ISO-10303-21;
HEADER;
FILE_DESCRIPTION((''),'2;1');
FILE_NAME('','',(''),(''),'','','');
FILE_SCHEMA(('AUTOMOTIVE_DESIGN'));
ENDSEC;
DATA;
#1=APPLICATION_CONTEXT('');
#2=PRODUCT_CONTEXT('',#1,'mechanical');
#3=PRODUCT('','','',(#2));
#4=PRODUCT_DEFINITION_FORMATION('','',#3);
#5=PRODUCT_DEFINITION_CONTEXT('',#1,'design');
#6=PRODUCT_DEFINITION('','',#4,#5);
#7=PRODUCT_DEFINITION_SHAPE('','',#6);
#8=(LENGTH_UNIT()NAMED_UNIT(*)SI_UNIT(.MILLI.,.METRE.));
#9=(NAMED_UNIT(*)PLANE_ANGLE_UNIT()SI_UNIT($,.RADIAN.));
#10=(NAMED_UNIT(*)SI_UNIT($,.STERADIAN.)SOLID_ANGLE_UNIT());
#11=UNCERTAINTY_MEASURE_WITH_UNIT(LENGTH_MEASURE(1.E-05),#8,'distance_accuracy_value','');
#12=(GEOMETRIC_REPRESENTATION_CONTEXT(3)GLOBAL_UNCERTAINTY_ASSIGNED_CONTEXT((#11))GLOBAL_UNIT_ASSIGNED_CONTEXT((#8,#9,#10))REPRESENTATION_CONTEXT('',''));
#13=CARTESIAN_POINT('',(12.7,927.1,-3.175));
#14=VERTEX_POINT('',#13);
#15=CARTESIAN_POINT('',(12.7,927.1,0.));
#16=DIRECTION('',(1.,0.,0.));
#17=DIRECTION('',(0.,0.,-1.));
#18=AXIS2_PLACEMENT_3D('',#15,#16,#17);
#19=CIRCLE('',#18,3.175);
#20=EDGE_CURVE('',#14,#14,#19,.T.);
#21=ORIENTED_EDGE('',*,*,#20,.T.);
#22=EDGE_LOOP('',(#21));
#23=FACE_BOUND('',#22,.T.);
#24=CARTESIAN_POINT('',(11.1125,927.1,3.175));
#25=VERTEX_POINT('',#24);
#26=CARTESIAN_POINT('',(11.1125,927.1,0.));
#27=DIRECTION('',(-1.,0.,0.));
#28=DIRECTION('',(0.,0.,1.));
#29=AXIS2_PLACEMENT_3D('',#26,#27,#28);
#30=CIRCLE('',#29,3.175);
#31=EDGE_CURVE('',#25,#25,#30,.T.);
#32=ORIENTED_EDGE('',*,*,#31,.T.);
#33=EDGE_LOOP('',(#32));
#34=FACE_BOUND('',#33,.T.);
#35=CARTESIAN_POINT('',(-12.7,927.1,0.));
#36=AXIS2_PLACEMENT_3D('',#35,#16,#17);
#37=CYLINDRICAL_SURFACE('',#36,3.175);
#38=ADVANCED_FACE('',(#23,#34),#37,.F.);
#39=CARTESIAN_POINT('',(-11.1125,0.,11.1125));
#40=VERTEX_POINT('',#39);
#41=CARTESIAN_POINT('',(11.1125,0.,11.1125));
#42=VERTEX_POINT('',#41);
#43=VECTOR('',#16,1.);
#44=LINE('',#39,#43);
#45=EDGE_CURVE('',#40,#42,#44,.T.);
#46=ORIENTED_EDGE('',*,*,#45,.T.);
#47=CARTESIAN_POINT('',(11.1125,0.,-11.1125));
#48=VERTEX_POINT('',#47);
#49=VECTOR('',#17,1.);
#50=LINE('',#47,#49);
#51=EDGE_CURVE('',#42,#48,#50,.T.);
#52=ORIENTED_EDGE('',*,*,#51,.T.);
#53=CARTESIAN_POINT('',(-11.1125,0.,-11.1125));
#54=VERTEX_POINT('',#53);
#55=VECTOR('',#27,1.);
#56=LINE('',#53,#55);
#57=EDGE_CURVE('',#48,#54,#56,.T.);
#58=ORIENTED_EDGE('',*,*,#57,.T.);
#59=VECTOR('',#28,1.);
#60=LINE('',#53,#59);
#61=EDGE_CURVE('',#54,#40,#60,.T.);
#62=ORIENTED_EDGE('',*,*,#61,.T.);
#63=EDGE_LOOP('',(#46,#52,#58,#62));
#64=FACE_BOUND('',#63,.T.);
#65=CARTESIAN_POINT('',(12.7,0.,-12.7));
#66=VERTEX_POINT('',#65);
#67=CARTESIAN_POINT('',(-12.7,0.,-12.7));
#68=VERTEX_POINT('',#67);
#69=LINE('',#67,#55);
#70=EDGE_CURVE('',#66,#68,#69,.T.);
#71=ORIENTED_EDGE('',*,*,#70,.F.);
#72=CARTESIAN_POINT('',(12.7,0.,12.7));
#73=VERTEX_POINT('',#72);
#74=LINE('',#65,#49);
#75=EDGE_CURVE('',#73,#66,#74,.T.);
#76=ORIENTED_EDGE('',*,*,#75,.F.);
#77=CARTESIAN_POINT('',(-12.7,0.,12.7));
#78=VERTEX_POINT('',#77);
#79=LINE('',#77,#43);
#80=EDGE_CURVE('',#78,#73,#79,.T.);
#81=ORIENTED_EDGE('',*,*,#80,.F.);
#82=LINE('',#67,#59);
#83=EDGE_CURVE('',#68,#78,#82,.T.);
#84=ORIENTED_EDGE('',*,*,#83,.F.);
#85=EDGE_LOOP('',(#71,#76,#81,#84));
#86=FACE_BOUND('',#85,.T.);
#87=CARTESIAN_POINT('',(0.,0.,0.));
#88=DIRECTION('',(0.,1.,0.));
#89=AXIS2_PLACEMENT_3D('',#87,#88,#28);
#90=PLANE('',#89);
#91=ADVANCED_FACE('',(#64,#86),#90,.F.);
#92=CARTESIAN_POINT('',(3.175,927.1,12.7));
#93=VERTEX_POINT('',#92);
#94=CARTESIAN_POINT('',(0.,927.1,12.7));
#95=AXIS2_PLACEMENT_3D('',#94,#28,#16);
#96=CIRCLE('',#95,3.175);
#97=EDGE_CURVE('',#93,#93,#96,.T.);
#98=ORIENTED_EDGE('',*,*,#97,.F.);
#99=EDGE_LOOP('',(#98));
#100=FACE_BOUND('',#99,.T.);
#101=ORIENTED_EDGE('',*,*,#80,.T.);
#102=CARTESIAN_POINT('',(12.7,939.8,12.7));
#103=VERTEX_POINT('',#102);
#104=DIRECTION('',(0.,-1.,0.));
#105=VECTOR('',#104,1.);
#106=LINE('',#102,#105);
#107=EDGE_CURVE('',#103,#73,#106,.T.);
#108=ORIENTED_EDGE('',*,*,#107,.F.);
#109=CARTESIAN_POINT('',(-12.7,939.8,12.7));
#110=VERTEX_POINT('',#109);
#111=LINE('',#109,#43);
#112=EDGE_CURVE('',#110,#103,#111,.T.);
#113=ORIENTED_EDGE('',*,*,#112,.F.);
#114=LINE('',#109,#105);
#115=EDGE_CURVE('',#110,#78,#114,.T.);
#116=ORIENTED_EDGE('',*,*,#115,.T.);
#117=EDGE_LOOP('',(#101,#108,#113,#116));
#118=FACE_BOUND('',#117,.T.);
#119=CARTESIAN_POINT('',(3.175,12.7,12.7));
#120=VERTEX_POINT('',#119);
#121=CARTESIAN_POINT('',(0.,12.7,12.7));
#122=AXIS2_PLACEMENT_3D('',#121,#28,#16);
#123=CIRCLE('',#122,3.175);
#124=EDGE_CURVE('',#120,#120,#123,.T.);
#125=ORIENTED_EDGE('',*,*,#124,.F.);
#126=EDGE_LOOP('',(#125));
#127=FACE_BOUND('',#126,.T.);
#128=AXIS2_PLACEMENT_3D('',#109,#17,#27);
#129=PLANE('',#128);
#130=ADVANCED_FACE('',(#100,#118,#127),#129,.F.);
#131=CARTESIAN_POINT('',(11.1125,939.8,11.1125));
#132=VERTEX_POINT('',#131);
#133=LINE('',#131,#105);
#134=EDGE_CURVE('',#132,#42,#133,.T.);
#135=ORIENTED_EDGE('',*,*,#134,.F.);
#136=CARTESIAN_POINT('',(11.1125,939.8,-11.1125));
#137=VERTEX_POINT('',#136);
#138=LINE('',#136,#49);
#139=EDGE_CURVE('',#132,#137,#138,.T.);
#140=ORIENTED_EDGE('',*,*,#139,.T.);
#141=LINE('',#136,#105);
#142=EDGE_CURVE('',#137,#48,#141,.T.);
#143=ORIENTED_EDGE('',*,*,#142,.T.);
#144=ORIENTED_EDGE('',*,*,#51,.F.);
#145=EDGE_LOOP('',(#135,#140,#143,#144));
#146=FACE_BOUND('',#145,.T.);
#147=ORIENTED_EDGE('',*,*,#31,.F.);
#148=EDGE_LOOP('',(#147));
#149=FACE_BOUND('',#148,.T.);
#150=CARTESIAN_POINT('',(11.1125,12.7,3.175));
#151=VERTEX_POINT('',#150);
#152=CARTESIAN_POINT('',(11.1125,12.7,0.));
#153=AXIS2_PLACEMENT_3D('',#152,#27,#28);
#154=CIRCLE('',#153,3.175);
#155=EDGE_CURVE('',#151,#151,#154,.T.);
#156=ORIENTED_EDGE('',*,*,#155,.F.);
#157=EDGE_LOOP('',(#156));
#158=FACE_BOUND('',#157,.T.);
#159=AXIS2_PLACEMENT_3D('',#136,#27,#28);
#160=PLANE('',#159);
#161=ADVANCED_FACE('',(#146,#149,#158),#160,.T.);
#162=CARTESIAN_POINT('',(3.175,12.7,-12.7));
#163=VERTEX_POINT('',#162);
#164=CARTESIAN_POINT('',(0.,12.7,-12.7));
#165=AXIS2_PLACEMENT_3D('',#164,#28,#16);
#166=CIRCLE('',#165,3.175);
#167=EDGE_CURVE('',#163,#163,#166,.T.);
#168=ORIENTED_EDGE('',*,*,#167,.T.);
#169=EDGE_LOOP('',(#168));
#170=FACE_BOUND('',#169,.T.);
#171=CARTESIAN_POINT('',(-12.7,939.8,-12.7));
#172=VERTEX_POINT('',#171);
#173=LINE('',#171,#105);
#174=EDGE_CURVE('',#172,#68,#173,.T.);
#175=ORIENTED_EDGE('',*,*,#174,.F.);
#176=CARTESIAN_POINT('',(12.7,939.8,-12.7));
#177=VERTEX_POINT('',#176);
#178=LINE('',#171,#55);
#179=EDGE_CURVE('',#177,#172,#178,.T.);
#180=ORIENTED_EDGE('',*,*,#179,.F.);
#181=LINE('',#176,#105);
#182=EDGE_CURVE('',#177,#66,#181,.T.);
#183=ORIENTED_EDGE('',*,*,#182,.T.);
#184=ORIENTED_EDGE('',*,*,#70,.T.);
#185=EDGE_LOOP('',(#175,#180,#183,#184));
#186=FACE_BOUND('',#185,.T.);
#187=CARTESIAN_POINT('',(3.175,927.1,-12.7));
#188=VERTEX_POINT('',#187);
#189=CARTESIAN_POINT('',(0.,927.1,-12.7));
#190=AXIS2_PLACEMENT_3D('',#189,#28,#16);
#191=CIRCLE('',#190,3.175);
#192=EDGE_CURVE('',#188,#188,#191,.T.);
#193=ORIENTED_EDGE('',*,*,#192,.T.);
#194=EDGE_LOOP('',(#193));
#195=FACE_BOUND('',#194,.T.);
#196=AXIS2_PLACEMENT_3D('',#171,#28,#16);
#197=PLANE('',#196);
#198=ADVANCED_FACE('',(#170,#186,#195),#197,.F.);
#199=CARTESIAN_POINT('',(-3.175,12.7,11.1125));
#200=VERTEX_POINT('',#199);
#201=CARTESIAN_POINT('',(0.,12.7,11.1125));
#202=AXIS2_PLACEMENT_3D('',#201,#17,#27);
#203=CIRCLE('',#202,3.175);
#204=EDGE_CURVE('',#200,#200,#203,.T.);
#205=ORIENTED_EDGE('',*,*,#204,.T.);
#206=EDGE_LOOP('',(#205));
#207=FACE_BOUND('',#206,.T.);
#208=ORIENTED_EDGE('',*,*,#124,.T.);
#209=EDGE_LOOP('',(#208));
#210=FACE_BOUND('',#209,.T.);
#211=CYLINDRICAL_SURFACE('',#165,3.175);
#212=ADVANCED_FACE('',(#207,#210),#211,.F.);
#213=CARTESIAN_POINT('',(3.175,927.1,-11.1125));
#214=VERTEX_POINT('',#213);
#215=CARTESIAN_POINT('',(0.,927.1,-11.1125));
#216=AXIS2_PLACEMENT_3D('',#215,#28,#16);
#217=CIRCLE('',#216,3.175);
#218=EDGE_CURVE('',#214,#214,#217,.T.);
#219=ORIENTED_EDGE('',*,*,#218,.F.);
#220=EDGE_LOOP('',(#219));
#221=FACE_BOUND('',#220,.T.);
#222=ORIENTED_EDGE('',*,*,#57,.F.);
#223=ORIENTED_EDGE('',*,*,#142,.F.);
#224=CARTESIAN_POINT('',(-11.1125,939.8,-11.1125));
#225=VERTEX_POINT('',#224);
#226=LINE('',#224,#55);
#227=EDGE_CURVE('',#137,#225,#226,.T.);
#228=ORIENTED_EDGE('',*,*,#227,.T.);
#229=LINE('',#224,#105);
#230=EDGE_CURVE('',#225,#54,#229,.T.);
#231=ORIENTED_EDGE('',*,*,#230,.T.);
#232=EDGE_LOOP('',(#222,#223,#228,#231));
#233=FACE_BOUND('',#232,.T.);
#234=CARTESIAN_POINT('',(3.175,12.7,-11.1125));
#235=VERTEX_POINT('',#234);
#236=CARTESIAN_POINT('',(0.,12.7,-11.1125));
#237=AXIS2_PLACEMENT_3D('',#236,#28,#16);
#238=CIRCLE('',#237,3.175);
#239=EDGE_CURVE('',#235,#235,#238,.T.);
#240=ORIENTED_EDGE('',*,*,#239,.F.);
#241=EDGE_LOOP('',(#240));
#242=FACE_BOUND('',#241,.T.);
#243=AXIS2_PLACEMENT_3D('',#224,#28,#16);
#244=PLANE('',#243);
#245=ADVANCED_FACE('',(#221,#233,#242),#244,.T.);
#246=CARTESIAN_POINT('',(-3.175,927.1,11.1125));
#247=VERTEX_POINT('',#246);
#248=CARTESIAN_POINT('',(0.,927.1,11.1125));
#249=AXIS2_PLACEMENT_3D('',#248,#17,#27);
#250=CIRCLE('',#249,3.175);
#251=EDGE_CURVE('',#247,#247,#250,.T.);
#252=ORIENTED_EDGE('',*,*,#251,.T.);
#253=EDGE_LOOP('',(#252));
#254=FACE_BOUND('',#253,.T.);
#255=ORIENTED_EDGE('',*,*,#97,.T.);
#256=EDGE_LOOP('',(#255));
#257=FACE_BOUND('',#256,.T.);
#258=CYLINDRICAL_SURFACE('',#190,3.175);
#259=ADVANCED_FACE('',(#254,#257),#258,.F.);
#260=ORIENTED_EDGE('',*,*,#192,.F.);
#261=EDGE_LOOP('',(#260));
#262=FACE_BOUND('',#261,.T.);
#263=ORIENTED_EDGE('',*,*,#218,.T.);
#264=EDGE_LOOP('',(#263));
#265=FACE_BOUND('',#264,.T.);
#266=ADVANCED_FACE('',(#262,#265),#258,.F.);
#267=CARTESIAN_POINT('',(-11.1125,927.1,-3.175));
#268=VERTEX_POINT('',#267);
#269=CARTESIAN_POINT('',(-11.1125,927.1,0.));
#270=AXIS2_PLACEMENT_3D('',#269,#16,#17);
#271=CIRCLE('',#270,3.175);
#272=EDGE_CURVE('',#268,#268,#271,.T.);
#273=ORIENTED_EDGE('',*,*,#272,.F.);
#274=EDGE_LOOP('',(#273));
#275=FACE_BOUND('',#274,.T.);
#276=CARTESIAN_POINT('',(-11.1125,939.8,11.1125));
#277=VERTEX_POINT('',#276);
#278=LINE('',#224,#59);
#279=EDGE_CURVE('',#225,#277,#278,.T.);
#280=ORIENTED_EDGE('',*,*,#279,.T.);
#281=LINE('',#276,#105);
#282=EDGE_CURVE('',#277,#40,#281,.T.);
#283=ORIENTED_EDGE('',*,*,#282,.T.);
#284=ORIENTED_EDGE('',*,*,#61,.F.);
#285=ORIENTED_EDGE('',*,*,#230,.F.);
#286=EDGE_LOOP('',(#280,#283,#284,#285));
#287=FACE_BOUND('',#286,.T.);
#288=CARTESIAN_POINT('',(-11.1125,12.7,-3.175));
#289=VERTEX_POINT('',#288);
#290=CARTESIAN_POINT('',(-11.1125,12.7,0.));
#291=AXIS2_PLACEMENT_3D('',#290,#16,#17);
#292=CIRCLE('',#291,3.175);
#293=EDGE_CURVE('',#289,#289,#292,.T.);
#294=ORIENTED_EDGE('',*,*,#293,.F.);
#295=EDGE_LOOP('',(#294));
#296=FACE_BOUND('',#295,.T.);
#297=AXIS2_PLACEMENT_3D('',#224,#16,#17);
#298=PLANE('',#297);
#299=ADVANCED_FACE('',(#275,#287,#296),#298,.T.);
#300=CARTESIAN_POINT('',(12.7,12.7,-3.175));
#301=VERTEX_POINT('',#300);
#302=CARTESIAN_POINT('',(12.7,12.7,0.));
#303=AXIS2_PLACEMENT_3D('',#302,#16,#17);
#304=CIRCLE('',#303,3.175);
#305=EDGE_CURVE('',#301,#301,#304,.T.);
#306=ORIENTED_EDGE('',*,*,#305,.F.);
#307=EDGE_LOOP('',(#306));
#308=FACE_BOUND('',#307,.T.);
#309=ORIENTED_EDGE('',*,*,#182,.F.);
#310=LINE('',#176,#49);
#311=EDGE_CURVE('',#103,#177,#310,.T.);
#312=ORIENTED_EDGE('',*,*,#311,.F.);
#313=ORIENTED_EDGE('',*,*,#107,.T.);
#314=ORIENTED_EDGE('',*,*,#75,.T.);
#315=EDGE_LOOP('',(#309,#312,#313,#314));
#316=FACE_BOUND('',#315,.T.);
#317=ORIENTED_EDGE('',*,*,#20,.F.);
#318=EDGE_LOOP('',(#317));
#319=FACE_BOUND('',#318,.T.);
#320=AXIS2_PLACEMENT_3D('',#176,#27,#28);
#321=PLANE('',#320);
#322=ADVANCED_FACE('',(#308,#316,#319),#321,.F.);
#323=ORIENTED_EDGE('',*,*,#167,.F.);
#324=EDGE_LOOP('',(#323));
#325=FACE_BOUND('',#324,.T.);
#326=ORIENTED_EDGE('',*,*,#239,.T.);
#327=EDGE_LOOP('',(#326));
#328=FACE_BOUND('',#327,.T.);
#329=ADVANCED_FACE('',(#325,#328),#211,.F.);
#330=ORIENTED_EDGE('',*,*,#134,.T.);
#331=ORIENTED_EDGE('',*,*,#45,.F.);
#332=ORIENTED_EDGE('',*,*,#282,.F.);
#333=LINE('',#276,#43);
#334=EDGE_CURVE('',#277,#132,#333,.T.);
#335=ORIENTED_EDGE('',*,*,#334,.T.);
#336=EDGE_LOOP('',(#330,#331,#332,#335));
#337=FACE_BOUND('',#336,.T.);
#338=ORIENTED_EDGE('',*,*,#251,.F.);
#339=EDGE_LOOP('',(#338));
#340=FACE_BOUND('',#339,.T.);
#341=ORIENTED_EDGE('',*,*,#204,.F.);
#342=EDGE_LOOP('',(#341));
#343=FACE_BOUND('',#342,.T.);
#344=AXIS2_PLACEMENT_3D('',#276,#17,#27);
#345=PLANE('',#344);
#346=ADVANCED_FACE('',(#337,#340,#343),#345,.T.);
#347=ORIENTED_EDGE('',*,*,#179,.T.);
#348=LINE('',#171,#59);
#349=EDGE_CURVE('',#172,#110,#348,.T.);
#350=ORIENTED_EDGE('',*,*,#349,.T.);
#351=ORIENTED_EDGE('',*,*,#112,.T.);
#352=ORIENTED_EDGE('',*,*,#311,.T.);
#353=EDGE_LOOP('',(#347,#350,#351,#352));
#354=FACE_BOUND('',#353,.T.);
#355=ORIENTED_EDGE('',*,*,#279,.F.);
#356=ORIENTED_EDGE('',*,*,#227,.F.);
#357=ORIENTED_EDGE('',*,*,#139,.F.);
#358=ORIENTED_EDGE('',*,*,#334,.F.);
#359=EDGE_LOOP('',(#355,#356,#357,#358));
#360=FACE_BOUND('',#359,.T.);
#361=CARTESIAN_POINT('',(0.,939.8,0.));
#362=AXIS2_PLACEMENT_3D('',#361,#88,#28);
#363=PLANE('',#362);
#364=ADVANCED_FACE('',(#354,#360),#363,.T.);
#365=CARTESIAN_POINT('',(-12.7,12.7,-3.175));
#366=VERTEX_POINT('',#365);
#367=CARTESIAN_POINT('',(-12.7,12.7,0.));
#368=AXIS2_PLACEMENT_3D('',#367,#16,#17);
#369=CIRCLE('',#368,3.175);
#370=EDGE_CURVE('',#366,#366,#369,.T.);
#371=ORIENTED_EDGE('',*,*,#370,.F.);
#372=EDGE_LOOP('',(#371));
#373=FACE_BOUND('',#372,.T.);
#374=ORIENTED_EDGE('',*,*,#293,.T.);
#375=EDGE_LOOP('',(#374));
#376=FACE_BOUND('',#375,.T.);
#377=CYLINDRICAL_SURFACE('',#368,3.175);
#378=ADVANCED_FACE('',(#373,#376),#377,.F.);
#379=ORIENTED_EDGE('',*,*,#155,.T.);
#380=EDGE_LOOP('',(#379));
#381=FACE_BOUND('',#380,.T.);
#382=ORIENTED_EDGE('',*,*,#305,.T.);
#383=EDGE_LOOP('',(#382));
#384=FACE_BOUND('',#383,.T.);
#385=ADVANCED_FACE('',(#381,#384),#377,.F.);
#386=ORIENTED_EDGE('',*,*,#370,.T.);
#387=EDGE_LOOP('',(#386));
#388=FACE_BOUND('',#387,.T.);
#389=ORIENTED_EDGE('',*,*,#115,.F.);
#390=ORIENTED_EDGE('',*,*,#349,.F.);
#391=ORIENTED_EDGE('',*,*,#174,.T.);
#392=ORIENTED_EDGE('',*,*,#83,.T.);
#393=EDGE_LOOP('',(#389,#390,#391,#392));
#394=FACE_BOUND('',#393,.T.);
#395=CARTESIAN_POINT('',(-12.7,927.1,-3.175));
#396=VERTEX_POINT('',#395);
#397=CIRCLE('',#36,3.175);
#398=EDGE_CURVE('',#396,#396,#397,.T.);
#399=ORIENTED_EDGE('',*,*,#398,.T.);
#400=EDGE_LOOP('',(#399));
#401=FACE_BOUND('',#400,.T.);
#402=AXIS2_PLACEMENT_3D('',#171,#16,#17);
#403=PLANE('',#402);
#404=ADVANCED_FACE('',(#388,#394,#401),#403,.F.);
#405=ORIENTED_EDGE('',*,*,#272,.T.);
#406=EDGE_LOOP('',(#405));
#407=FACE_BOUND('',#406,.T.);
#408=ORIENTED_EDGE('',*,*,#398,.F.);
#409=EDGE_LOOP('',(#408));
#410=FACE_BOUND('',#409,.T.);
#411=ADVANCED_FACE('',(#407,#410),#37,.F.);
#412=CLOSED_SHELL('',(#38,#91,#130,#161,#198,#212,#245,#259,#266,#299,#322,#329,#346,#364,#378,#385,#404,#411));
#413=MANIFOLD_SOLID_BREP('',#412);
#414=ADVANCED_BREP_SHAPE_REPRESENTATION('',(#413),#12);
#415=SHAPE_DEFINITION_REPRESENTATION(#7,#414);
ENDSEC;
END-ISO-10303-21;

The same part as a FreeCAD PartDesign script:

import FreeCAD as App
import Part
import Sketcher
Q = App.Units.Quantity

doc = App.newDocument("Part")
body = doc.addObject("PartDesign::Body", "Body")

# Sketch on XZ plane
sketch1 = body.newObject("Sketcher::SketchObject", "Sketch")
sketch1.AttachmentSupport = (doc.getObject("XZ_Plane"), [""])
sketch1.MapMode = "FlatFace"
sketch1.addGeometry([
    Part.LineSegment(App.Vector(-13, -13, 0), App.Vector(-13, 13, 0)),  # 0
    Part.LineSegment(App.Vector(-13, 13, 0), App.Vector(13, 13, 0)),  # 1
    Part.LineSegment(App.Vector(13, 13, 0), App.Vector(13, -13, 0)),  # 2
    Part.LineSegment(App.Vector(13, -13, 0), App.Vector(-13, -13, 0)),  # 3
    Part.LineSegment(App.Vector(11, 11, 0), App.Vector(-11, 11, 0)),  # 4
    Part.LineSegment(App.Vector(-11, 11, 0), App.Vector(-11, -11, 0)),  # 5
    Part.LineSegment(App.Vector(-11, -11, 0), App.Vector(11, -11, 0)),  # 6
    Part.LineSegment(App.Vector(11, -11, 0), App.Vector(11, 11, 0)),  # 7
], False)
sketch1.addConstraint([
    Sketcher.Constraint("Coincident", 0, 2, 1, 1),
    Sketcher.Constraint("Coincident", 1, 2, 2, 1),
    Sketcher.Constraint("Coincident", 2, 2, 3, 1),
    Sketcher.Constraint("Coincident", 3, 2, 0, 1),
    Sketcher.Constraint("Coincident", 4, 2, 5, 1),
    Sketcher.Constraint("Coincident", 5, 2, 6, 1),
    Sketcher.Constraint("Coincident", 6, 2, 7, 1),
    Sketcher.Constraint("Coincident", 7, 2, 4, 1),
    Sketcher.Constraint("Vertical", 0),
    Sketcher.Constraint("Horizontal", 1),
    Sketcher.Constraint("Vertical", 2),
    Sketcher.Constraint("Horizontal", 3),
    Sketcher.Constraint("Horizontal", 4),
    Sketcher.Constraint("Vertical", 5),
    Sketcher.Constraint("Horizontal", 6),
    Sketcher.Constraint("Vertical", 7),
    Sketcher.Constraint("Symmetric", 0, 2, 2, 2, -1, 1),
    Sketcher.Constraint("Symmetric", 4, 2, 6, 2, -1, 1),
    Sketcher.Constraint("Equal", 3, 0),
    Sketcher.Constraint("Equal", 6, 5),
    Sketcher.Constraint("DistanceX", 1, 1, 1, 2, Q("1 in")),
    Sketcher.Constraint("DistanceX", 4, 2, 4, 1, Q("0.875 in")),
])
pad1 = body.newObject("PartDesign::Pad", "Pad")
pad1.Profile = sketch1
pad1.Length = Q("37 in")
pad1.Reversed = True

# Sketch on YZ plane
sketch2 = body.newObject("Sketcher::SketchObject", "Sketch001")
sketch2.AttachmentSupport = (doc.getObject("YZ_Plane"), [""])
sketch2.MapMode = "FlatFace"
sketch2.AttachmentOffset = App.Placement(App.Vector(0, 0, 0.5 * 25.4), App.Rotation())
sketch2.addGeometry([
    Part.Circle(App.Vector(12.7, 0, 0), App.Vector(0, 0, 1), 3.2),
    Part.Circle(App.Vector(927.1, 0, 0), App.Vector(0, 0, 1), 3.2),
], False)
sketch2.addConstraint([
    Sketcher.Constraint("Equal", 0, 1),
    Sketcher.Constraint("PointOnObject", 0, 3, -1),
    Sketcher.Constraint("PointOnObject", 1, 3, -1),
    Sketcher.Constraint("Diameter", 0, Q("0.25 in")),
    Sketcher.Constraint("DistanceX", 0, 3, 1, 3, Q("36 in")),
    Sketcher.Constraint("DistanceX", -1, 1, 0, 3, Q("0.5 in")),
])
pocket1 = body.newObject("PartDesign::Pocket", "Pocket")
pocket1.Profile = sketch2
pocket1.Type = "ThroughAll"

# Sketch on XY plane
sketch3 = body.newObject("Sketcher::SketchObject", "Sketch002")
sketch3.AttachmentSupport = (doc.getObject("XY_Plane"), [""])
sketch3.MapMode = "FlatFace"
sketch3.AttachmentOffset = App.Placement(App.Vector(0, 0, 0.5 * 25.4), App.Rotation())
sketch3.addGeometry([
    Part.Circle(App.Vector(0, 12.7, 0), App.Vector(0, 0, 1), 3.2),
    Part.Circle(App.Vector(0, 927.1, 0), App.Vector(0, 0, 1), 3.2),
], False)
sketch3.addConstraint([
    Sketcher.Constraint("Equal", 0, 1),
    Sketcher.Constraint("PointOnObject", 0, 3, -2),
    Sketcher.Constraint("PointOnObject", 1, 3, -2),
    Sketcher.Constraint("Diameter", 0, Q("0.25 in")),
    Sketcher.Constraint("DistanceY", 0, 3, 1, 3, Q("36 in")),
    Sketcher.Constraint("DistanceY", -1, 1, 0, 3, Q("0.5 in")),
])
pocket2 = body.newObject("PartDesign::Pocket", "Pocket001")
pocket2.Profile = sketch3
pocket2.Type = "ThroughAll"

doc.recompute()
